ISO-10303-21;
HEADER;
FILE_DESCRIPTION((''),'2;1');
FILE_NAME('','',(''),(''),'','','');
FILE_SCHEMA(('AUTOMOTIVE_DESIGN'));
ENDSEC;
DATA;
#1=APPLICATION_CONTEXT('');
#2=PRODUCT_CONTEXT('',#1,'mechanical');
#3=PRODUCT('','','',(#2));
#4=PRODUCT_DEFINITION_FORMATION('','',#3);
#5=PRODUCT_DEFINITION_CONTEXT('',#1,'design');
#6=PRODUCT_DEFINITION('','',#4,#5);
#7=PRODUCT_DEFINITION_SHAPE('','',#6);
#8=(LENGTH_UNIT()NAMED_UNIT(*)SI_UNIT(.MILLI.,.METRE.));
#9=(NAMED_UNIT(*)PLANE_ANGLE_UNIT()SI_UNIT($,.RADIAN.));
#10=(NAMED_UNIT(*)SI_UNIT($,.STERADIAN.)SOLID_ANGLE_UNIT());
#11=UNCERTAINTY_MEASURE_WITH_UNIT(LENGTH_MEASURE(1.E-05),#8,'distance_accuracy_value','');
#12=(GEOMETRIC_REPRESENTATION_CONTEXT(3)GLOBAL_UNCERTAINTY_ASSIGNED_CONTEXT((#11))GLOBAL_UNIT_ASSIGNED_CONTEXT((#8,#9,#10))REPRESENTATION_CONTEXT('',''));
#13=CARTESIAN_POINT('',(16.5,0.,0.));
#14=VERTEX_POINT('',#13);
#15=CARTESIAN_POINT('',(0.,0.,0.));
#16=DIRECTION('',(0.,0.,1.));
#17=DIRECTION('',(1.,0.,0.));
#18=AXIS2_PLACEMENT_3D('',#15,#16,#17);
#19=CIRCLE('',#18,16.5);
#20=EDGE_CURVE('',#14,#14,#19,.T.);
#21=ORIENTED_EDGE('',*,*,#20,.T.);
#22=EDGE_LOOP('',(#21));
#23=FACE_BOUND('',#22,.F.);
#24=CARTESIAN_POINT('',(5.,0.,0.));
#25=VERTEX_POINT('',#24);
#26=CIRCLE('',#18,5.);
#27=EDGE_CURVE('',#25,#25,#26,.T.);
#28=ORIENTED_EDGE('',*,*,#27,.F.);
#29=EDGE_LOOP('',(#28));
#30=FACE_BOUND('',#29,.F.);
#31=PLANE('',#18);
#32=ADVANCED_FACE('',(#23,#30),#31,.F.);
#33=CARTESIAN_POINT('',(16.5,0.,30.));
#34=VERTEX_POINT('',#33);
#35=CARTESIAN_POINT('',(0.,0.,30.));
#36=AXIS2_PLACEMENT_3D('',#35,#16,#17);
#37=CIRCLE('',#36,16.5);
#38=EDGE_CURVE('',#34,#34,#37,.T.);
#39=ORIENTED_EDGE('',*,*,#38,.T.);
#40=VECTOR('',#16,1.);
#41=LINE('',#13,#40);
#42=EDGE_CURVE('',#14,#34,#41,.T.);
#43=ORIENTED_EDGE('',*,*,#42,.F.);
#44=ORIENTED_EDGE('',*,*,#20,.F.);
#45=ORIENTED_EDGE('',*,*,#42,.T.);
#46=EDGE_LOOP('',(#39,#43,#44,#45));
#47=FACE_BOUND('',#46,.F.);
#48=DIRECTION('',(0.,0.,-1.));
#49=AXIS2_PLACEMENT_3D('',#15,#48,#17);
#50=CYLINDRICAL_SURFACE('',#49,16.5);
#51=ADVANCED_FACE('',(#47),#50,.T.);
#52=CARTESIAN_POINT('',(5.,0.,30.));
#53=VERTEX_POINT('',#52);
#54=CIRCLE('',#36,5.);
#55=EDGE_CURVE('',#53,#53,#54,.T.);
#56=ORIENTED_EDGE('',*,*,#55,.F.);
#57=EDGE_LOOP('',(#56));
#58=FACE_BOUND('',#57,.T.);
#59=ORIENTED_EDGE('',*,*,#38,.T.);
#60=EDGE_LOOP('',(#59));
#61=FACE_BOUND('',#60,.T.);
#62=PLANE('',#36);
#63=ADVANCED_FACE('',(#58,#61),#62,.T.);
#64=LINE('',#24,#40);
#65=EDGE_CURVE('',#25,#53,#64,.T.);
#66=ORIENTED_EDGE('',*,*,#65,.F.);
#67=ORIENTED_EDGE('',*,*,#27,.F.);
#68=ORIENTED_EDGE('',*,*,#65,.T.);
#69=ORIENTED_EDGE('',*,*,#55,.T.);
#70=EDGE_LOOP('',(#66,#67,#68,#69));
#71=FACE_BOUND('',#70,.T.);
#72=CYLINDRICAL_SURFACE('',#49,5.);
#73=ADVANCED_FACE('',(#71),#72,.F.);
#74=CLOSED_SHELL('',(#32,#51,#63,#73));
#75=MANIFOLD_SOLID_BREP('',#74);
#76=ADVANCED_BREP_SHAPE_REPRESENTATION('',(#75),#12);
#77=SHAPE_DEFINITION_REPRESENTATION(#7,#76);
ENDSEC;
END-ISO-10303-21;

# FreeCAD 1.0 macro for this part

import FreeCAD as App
import Part
import Sketcher

V = App.Vector

doc = App.newDocument("Part")
body = doc.addObject("PartDesign::Body", "Body")

# Sketch on XY plane
sketch1 = doc.addObject("Sketcher::SketchObject", "Sketch")
body.addObject(sketch1)
sketch1.AttachmentSupport = (doc.XY_Plane, [""])
sketch1.MapMode = "FlatFace"
sketch1.addGeometry([
    Part.Circle(V(0, 0, 0), V(0, 0, 1), 16.5),
    Part.Circle(V(0, 0, 0), V(0, 0, 1), 5),
], False)
sketch1.addConstraint([
    Sketcher.Constraint("Coincident", 0, 3, -1, 1),
    Sketcher.Constraint("Coincident", 1, 3, -1, 1),
    Sketcher.Constraint("Diameter", 0, 33.0),
    Sketcher.Constraint("Diameter", 1, 10.0),
])
pad1 = doc.addObject("PartDesign::Pad", "Pad")
body.addObject(pad1)
pad1.Profile = sketch1
pad1.Length = 30

doc.recompute()
